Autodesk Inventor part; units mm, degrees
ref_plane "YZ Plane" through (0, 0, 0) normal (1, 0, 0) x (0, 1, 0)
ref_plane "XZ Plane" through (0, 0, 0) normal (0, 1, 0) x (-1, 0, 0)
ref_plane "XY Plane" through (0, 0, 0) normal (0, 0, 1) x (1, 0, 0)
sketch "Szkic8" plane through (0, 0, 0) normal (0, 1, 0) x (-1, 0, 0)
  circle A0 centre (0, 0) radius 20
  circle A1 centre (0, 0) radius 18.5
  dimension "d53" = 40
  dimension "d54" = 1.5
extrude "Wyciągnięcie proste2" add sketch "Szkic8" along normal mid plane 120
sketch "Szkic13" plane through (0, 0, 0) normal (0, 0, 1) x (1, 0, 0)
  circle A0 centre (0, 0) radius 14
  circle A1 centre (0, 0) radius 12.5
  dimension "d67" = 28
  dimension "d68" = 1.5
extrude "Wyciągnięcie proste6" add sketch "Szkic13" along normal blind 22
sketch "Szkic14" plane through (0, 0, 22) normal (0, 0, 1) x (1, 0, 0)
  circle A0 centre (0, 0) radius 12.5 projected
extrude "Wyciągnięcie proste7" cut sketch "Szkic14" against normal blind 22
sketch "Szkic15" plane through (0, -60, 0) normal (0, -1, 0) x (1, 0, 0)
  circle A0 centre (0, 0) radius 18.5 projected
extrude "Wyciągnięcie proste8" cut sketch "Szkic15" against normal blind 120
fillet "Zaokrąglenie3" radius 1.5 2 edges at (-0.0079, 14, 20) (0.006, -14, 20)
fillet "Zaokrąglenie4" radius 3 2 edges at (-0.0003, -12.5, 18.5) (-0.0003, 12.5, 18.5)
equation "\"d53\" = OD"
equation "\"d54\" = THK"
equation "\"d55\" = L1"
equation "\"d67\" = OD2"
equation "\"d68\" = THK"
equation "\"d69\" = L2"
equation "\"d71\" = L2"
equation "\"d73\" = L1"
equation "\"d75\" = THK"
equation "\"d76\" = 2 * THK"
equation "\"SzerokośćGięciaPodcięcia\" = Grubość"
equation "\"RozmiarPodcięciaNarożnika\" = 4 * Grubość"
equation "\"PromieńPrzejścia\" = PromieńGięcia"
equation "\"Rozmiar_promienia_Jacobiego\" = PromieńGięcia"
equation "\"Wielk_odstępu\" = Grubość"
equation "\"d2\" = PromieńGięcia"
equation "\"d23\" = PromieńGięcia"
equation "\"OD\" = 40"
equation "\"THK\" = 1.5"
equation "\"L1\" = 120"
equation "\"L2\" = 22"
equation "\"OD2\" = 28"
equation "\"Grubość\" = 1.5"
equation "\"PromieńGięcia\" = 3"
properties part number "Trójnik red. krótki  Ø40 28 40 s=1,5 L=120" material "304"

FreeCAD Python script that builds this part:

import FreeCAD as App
import Part
import Sketcher
Q = App.Units.Quantity


def edges_at(feature, points):
    """Names of the edges that pass closest to the given points."""
    edges = feature.Shape.Edges
    near = lambda p: min(range(len(edges)), key=lambda i: edges[i].distToShape(Part.Vertex(*p))[0])
    return sorted({f"Edge{near(p) + 1}" for p in points})

doc = App.newDocument("Part")
body = doc.addObject("PartDesign::Body", "Body")

# Sketch on XZ plane
sketch1 = body.newObject("Sketcher::SketchObject", "Sketch")
sketch1.AttachmentSupport = (doc.getObject("XZ_Plane"), [""])
sketch1.MapMode = "FlatFace"
sketch1.addGeometry(Part.Circle(App.Vector(0, 0, 0), App.Vector(0, 0, 1), 20), False)
sketch1.addGeometry(Part.Circle(App.Vector(0, 0, 0), App.Vector(0, 0, 1), 18), False)
sketch1.addConstraint(Sketcher.Constraint("Coincident", 0, 3, -1, 1))
sketch1.addConstraint(Sketcher.Constraint("Coincident", 1, 3, -1, 1))
sketch1.addConstraint(Sketcher.Constraint("Diameter", 0, Q("40 mm")))
sketch1.addConstraint(Sketcher.Constraint("Diameter", 1, Q("37 mm")))
pad1 = body.newObject("PartDesign::Pad", "Pad")
pad1.Profile = sketch1
pad1.Length = 120
pad1.Midplane = True

# Sketch on XY plane
sketch2 = body.newObject("Sketcher::SketchObject", "Sketch001")
sketch2.AttachmentSupport = (doc.getObject("XY_Plane"), [""])
sketch2.MapMode = "FlatFace"
sketch2.addGeometry(Part.Circle(App.Vector(0, 0, 0), App.Vector(0, 0, 1), 14), False)
sketch2.addGeometry(Part.Circle(App.Vector(0, 0, 0), App.Vector(0, 0, 1), 12), False)
sketch2.addConstraint(Sketcher.Constraint("Coincident", 0, 3, -1, 1))
sketch2.addConstraint(Sketcher.Constraint("Coincident", 1, 3, -1, 1))
sketch2.addConstraint(Sketcher.Constraint("Diameter", 0, Q("28 mm")))
sketch2.addConstraint(Sketcher.Constraint("Diameter", 1, Q("25 mm")))
pad2 = body.newObject("PartDesign::Pad", "Pad001")
pad2.Profile = sketch2
pad2.Length = 22

# Sketch on XY plane
sketch3 = body.newObject("Sketcher::SketchObject", "Sketch002")
sketch3.AttachmentSupport = (doc.getObject("XY_Plane"), [""])
sketch3.MapMode = "FlatFace"
sketch3.AttachmentOffset = App.Placement(App.Vector(0, 0, 22), App.Rotation())
sketch3.addGeometry(Part.Circle(App.Vector(0, 0, 0), App.Vector(0, 0, 1), 12), False)
sketch3.addConstraint(Sketcher.Constraint("Coincident", 0, 3, -1, 1))
sketch3.addConstraint(Sketcher.Constraint("Diameter", 0, Q("25 mm")))
pocket1 = body.newObject("PartDesign::Pocket", "Pocket")
pocket1.Profile = sketch3
pocket1.Length = 22

# Sketch on XZ plane
sketch4 = body.newObject("Sketcher::SketchObject", "Sketch003")
sketch4.AttachmentSupport = (doc.getObject("XZ_Plane"), [""])
sketch4.MapMode = "FlatFace"
sketch4.AttachmentOffset = App.Placement(App.Vector(0, 0, 60), App.Rotation())
sketch4.addGeometry(Part.Circle(App.Vector(0, 0, 0), App.Vector(0, 0, 1), 18), False)
sketch4.addConstraint(Sketcher.Constraint("Coincident", 0, 3, -1, 1))
sketch4.addConstraint(Sketcher.Constraint("Diameter", 0, Q("37 mm")))
pocket2 = body.newObject("PartDesign::Pocket", "Pocket001")
pocket2.Profile = sketch4
pocket2.Length = 120
doc.recompute()

fillet = body.newObject("PartDesign::Fillet", "Fillet")
fillet.Base = (pocket2, edges_at(pocket2, [(-0.008, 14, 20), (0.006, -14, 20)]))
fillet.Radius = 1.5
doc.recompute()

fillet2 = body.newObject("PartDesign::Fillet", "Fillet001")
fillet2.Base = (fillet, edges_at(fillet, [(0, -12.5, 18.5), (0, 12.5, 18.5)]))
fillet2.Radius = 3

doc.recompute()
